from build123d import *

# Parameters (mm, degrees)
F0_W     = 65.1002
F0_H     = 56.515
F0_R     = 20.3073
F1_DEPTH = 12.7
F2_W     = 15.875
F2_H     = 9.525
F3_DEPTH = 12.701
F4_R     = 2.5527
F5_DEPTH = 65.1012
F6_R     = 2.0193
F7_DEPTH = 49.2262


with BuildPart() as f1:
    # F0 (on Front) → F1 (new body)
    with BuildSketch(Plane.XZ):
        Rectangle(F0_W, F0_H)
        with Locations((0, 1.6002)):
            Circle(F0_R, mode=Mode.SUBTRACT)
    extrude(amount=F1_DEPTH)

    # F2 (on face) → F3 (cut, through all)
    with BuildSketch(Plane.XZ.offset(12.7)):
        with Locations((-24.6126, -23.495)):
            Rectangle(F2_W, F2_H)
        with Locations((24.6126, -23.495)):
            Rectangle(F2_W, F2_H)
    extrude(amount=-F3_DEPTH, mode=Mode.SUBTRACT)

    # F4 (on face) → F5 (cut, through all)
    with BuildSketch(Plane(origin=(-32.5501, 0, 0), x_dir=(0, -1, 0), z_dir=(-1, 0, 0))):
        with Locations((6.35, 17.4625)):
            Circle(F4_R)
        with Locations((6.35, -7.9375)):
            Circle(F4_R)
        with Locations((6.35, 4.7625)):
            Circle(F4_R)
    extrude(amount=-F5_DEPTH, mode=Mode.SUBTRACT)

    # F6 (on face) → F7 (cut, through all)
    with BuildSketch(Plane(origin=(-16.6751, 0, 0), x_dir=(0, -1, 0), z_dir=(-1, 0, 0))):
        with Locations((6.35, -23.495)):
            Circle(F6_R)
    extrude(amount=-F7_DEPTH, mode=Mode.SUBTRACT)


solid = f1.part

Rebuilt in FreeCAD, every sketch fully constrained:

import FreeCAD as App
import Part
import Sketcher
from FreeCAD import Vector
Q = App.Units.Quantity

doc = App.newDocument("Part")
params = doc.addObject("Spreadsheet::Sheet", "Params")
for row, (alias, value) in enumerate([
    ("sketch1_diameter", "1.599 in"),
    ("sketch1_width", "2.563 in"),
    ("sketch1_height", "2.225 in"),
    ("pad1_length", "0.5 in"),
    ("sketch2_width", "0.625 in"),
    ("sketch2_height", "0.375 in"),
    ("sketch3_diameter", "0.201 in"),
    ("sketch4_diameter", "0.159 in"),
], start=1):
    params.set(f"A{row}", alias)
    params.set(f"B{row}", "=" + value)
    params.setAlias(f"B{row}", alias)

body = doc.addObject("PartDesign::Body", "Body")

# Sketch on XZ plane
sketch1 = doc.addObject("Sketcher::SketchObject", "Sketch")
body.addObject(sketch1)
sketch1.AttachmentSupport = (doc.XZ_Plane, [""])
sketch1.MapMode = "FlatFace"
sketch1.addGeometry([
    Part.LineSegment(Vector(-33, 28, 0), Vector(-33, -28, 0)),  # 0
    Part.LineSegment(Vector(-33, -28, 0), Vector(33, -28, 0)),  # 1
    Part.LineSegment(Vector(33, -28, 0), Vector(33, 28, 0)),  # 2
    Part.LineSegment(Vector(33, 28, 0), Vector(-33, 28, 0)),  # 3
    Part.Circle(Vector(0, 2, 0), Vector(0, 0, 1), 20),  # 4
], False)
sketch1.addConstraint([
    Sketcher.Constraint("Coincident", 0, 2, 1, 1),
    Sketcher.Constraint("Coincident", 1, 2, 2, 1),
    Sketcher.Constraint("Coincident", 2, 2, 3, 1),
    Sketcher.Constraint("Coincident", 3, 2, 0, 1),
    Sketcher.Constraint("Vertical", 0),
    Sketcher.Constraint("Horizontal", 1),
    Sketcher.Constraint("Vertical", 2),
    Sketcher.Constraint("Horizontal", 3),
    Sketcher.Constraint("Symmetric", 0, 2, 2, 2, -1, 1),
    Sketcher.Constraint("PointOnObject", 4, 3, -2),
    Sketcher.Constraint("Diameter", 4, Q("1.599 in")),
    Sketcher.Constraint("DistanceX", 1, 1, 1, 2, Q("2.563 in")),
    Sketcher.Constraint("DistanceY", 0, 2, 0, 1, Q("2.225 in")),
    Sketcher.Constraint("DistanceY", -1, 1, 4, 3, Q("0.063 in")),
])
sketch1.setExpression("Constraints[10]", "Params.sketch1_diameter")
sketch1.setExpression("Constraints[11]", "Params.sketch1_width")
sketch1.setExpression("Constraints[12]", "Params.sketch1_height")
pad1 = doc.addObject("PartDesign::Pad", "Pad")
body.addObject(pad1)
pad1.Profile = sketch1
pad1.setExpression("Length", "Params.pad1_length")

# Sketch on XZ plane
sketch2 = doc.addObject("Sketcher::SketchObject", "Sketch001")
body.addObject(sketch2)
sketch2.AttachmentSupport = (doc.XZ_Plane, [""])
sketch2.MapMode = "FlatFace"
sketch2.AttachmentOffset = App.Placement(Vector(0, 0, 0.5 * 25.4), App.Rotation())
sketch2.addGeometry([
    Part.LineSegment(Vector(-33, -19, 0), Vector(-33, -28, 0)),  # 0
    Part.LineSegment(Vector(-33, -28, 0), Vector(-17, -28, 0)),  # 1
    Part.LineSegment(Vector(-17, -28, 0), Vector(-17, -19, 0)),  # 2
    Part.LineSegment(Vector(-17, -19, 0), Vector(-33, -19, 0)),  # 3
    Part.LineSegment(Vector(17, -19, 0), Vector(17, -28, 0)),  # 4
    Part.LineSegment(Vector(17, -28, 0), Vector(33, -28, 0)),  # 5
    Part.LineSegment(Vector(33, -28, 0), Vector(33, -19, 0)),  # 6
    Part.LineSegment(Vector(33, -19, 0), Vector(17, -19, 0)),  # 7
], False)
sketch2.addConstraint([
    Sketcher.Constraint("Coincident", 0, 2, 1, 1),
    Sketcher.Constraint("Coincident", 1, 2, 2, 1),
    Sketcher.Constraint("Coincident", 2, 2, 3, 1),
    Sketcher.Constraint("Coincident", 3, 2, 0, 1),
    Sketcher.Constraint("Coincident", 4, 2, 5, 1),
    Sketcher.Constraint("Coincident", 5, 2, 6, 1),
    Sketcher.Constraint("Coincident", 6, 2, 7, 1),
    Sketcher.Constraint("Coincident", 7, 2, 4, 1),
    Sketcher.Constraint("Vertical", 0),
    Sketcher.Constraint("Horizontal", 1),
    Sketcher.Constraint("Vertical", 2),
    Sketcher.Constraint("Horizontal", 3),
    Sketcher.Constraint("Vertical", 4),
    Sketcher.Constraint("Horizontal", 5),
    Sketcher.Constraint("Vertical", 6),
    Sketcher.Constraint("Horizontal", 7),
    Sketcher.Constraint("Symmetric", 1, 2, 4, 2, -2),
    Sketcher.Constraint("Symmetric", 3, 2, 6, 2, -2),
    Sketcher.Constraint("DistanceX", 1, 1, 1, 2, Q("0.625 in")),
    Sketcher.Constraint("DistanceY", 0, 2, 0, 1, Q("0.375 in")),
    Sketcher.Constraint("DistanceX", 1, 2, 4, 2, Q("1.313 in")),
    Sketcher.Constraint("DistanceY", 0, 2, -1, 1, Q("1.1125 in")),
])
sketch2.setExpression("Constraints[18]", "Params.sketch2_width")
sketch2.setExpression("Constraints[19]", "Params.sketch2_height")
pocket1 = doc.addObject("PartDesign::Pocket", "Pocket")
body.addObject(pocket1)
pocket1.Profile = sketch2
pocket1.Type = "ThroughAll"

# Sketch on YZ plane
sketch3 = doc.addObject("Sketcher::SketchObject", "Sketch002")
body.addObject(sketch3)
sketch3.AttachmentSupport = (doc.YZ_Plane, [""])
sketch3.MapMode = "FlatFace"
sketch3.AttachmentOffset = App.Placement(Vector(0, 0, -1.2815 * 25.4), App.Rotation())
sketch3.addGeometry([
    Part.Circle(Vector(-6.3, 17.5, 0), Vector(0, 0, 1), 2.6),
    Part.Circle(Vector(-6.3, -7.9, 0), Vector(0, 0, 1), 2.6),
    Part.Circle(Vector(-6.3, 4.8, 0), Vector(0, 0, 1), 2.6),
], False)
sketch3.addConstraint([
    Sketcher.Constraint("Equal", 0, 1),
    Sketcher.Constraint("Equal", 1, 2),
    Sketcher.Constraint("Vertical", 0, 3, 1, 3),
    Sketcher.Constraint("Vertical", 1, 3, 2, 3),
    Sketcher.Constraint("Diameter", 0, Q("0.201 in")),
    Sketcher.Constraint("DistanceY", 1, 3, 0, 3, Q("1 in")),
    Sketcher.Constraint("DistanceY", 2, 3, 0, 3, Q("0.5 in")),
    Sketcher.Constraint("DistanceX", 0, 3, -1, 1, Q("0.25 in")),
    Sketcher.Constraint("DistanceY", -1, 1, 0, 3, Q("0.6875 in")),
])
sketch3.setExpression("Constraints[4]", "Params.sketch3_diameter")
pocket2 = doc.addObject("PartDesign::Pocket", "Pocket001")
body.addObject(pocket2)
pocket2.Profile = sketch3
pocket2.Type = "ThroughAll"
pocket2.Reversed = True

# Sketch on YZ plane
sketch4 = doc.addObject("Sketcher::SketchObject", "Sketch003")
body.addObject(sketch4)
sketch4.AttachmentSupport = (doc.YZ_Plane, [""])
sketch4.MapMode = "FlatFace"
sketch4.AttachmentOffset = App.Placement(Vector(0, 0, -0.6565 * 25.4), App.Rotation())
sketch4.addGeometry(Part.Circle(Vector(-6.3, -23.5, 0), Vector(0, 0, 1), 2), False)
sketch4.addConstraint([
    Sketcher.Constraint("Diameter", 0, Q("0.159 in")),
    Sketcher.Constraint("DistanceX", 0, 3, -1, 1, Q("0.25 in")),
    Sketcher.Constraint("DistanceY", 0, 3, -1, 1, Q("0.925 in")),
])
sketch4.setExpression("Constraints[0]", "Params.sketch4_diameter")
pocket3 = doc.addObject("PartDesign::Pocket", "Pocket002")
body.addObject(pocket3)
pocket3.Profile = sketch4
pocket3.Type = "ThroughAll"
pocket3.Reversed = True

doc.recompute()
